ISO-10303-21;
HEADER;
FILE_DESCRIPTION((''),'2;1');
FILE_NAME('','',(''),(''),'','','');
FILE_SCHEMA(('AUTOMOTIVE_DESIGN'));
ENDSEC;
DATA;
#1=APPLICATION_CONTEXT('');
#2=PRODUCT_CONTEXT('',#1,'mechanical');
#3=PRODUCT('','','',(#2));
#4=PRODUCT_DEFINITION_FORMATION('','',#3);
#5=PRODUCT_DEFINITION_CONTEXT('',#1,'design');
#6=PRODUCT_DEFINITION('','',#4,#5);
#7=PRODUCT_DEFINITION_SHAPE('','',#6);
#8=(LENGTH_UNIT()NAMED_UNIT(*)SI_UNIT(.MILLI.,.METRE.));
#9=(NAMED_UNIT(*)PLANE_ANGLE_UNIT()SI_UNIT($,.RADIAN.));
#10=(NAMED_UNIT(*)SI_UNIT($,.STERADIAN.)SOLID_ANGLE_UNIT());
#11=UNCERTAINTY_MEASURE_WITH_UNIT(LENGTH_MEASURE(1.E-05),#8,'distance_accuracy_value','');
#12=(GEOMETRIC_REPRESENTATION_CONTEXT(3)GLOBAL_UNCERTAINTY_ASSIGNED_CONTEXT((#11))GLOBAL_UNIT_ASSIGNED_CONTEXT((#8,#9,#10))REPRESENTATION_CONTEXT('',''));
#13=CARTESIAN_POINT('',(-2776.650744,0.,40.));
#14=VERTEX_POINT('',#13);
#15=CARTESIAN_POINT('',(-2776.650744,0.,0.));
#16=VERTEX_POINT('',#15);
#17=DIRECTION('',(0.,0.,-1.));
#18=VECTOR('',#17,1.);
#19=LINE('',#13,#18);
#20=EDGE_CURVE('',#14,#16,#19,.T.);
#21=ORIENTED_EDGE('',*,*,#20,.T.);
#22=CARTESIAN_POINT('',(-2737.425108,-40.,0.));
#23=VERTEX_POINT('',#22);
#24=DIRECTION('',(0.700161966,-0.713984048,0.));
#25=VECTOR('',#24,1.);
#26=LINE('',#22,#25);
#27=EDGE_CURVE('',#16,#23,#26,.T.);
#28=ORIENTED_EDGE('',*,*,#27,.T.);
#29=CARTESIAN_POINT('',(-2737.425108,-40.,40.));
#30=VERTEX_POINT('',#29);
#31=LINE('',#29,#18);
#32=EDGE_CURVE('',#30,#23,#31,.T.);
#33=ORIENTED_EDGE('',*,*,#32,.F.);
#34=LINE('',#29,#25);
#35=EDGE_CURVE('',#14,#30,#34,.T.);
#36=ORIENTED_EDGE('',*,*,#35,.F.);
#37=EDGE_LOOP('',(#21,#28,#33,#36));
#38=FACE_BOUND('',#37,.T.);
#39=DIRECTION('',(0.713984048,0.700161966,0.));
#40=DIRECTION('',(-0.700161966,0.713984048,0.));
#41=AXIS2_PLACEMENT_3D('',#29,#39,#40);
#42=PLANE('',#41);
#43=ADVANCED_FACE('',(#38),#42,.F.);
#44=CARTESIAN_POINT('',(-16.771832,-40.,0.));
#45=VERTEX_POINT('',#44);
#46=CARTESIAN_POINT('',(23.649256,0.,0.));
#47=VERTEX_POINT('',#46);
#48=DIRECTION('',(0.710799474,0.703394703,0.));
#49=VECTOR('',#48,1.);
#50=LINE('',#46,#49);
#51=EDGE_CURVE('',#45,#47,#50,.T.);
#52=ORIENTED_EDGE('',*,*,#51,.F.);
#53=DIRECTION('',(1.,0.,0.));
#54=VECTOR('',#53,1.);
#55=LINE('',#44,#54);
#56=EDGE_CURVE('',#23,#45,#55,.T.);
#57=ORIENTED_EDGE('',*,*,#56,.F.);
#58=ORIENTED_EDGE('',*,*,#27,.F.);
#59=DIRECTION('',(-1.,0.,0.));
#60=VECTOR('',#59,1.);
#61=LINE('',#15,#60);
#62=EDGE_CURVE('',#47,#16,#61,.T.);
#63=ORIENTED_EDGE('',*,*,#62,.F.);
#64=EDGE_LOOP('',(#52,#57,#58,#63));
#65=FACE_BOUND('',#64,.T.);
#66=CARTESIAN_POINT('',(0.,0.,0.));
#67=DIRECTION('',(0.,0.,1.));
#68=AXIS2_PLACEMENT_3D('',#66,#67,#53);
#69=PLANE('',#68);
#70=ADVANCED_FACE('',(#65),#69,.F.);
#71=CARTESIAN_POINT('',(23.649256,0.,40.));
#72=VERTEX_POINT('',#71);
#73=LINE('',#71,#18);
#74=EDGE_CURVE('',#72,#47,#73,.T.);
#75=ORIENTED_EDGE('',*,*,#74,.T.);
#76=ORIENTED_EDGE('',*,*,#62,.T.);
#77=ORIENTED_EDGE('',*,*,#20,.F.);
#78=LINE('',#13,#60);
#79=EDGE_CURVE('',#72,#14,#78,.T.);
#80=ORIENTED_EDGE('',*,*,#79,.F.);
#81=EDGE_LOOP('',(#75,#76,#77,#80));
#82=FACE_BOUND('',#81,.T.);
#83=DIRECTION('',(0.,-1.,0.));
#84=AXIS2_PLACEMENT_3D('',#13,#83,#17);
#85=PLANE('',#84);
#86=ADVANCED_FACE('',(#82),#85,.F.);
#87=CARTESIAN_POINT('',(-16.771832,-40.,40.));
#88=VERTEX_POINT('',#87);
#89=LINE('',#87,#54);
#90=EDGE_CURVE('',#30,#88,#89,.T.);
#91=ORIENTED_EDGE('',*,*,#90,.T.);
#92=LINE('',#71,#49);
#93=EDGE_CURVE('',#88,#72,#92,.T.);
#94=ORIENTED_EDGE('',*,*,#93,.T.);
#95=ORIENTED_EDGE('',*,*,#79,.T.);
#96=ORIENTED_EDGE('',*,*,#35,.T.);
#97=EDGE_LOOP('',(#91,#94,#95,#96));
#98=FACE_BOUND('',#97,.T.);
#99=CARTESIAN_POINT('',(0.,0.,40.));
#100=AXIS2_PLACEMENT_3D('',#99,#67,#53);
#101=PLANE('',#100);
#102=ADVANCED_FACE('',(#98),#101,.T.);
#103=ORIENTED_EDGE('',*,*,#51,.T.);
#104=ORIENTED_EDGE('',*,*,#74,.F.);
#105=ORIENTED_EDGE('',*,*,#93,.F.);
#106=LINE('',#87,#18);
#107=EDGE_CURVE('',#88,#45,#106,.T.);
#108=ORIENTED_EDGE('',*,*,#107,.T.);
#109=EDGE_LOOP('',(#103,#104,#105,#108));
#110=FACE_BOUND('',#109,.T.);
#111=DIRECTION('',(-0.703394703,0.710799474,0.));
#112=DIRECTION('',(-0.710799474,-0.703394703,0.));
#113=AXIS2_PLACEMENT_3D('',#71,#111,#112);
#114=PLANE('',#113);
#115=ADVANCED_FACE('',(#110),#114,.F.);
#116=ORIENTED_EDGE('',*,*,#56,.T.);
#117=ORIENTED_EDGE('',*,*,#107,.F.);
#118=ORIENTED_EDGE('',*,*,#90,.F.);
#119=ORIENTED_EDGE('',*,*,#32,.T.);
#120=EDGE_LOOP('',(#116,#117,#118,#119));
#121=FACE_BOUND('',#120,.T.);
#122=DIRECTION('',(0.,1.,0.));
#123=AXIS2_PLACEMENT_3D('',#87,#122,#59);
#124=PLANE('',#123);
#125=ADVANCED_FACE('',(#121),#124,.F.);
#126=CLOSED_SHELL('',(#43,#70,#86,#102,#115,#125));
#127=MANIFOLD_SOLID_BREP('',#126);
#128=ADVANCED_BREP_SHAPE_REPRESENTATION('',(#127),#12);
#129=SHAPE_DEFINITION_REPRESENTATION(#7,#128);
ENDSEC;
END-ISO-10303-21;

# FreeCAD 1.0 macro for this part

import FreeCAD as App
import Part
import Sketcher
from FreeCAD import Vector
Q = App.Units.Quantity


def add_polygon(sketch, points):
    """Adds a closed chain of lines whose ends are joined by coincident constraints."""
    first, n = sketch.GeometryCount, len(points)
    for a, b in zip(points, points[1:] + points[:1]):
        sketch.addGeometry(Part.LineSegment(App.Vector(*a, 0), App.Vector(*b, 0)), False)
    for i in range(n):
        sketch.addConstraint(Sketcher.Constraint("Coincident", first + i, 2, first + (i + 1) % n, 1))

doc = App.newDocument("Part")
body = doc.addObject("PartDesign::Body", "Body")

# Sketch on XY plane
sketch1 = body.newObject("Sketcher::SketchObject", "Sketch")
sketch1.AttachmentSupport = (doc.getObject("XY_Plane"), [""])
sketch1.MapMode = "FlatFace"
add_polygon(sketch1, [(24, 0), (-2777, 0), (-2737, -40), (-17, -40)])  # lines 0-3
sketch1.addConstraint(Sketcher.Constraint("Horizontal", 0))
sketch1.addConstraint(Sketcher.Constraint("Horizontal", 2))
sketch1.addConstraint(Sketcher.Constraint("PointOnObject", 0, 2, -1))
sketch1.addConstraint(Sketcher.Constraint("DistanceX", 0, 2, 0, 1, 2800.3))
sketch1.addConstraint(Sketcher.Constraint("DistanceY", 1, 2, -1, 1, 40.0))
sketch1.addConstraint(Sketcher.Constraint("Angle", 3, Q("44.7 deg")))
sketch1.addConstraint(Sketcher.Constraint("Angle", 1, Q("-45.56 deg")))
sketch1.addConstraint(Sketcher.Constraint("DistanceX", 2, 2, -1, 1, 16.771832))
pad1 = body.newObject("PartDesign::Pad", "Pad")
pad1.Profile = sketch1
pad1.Length = 40

doc.recompute()
